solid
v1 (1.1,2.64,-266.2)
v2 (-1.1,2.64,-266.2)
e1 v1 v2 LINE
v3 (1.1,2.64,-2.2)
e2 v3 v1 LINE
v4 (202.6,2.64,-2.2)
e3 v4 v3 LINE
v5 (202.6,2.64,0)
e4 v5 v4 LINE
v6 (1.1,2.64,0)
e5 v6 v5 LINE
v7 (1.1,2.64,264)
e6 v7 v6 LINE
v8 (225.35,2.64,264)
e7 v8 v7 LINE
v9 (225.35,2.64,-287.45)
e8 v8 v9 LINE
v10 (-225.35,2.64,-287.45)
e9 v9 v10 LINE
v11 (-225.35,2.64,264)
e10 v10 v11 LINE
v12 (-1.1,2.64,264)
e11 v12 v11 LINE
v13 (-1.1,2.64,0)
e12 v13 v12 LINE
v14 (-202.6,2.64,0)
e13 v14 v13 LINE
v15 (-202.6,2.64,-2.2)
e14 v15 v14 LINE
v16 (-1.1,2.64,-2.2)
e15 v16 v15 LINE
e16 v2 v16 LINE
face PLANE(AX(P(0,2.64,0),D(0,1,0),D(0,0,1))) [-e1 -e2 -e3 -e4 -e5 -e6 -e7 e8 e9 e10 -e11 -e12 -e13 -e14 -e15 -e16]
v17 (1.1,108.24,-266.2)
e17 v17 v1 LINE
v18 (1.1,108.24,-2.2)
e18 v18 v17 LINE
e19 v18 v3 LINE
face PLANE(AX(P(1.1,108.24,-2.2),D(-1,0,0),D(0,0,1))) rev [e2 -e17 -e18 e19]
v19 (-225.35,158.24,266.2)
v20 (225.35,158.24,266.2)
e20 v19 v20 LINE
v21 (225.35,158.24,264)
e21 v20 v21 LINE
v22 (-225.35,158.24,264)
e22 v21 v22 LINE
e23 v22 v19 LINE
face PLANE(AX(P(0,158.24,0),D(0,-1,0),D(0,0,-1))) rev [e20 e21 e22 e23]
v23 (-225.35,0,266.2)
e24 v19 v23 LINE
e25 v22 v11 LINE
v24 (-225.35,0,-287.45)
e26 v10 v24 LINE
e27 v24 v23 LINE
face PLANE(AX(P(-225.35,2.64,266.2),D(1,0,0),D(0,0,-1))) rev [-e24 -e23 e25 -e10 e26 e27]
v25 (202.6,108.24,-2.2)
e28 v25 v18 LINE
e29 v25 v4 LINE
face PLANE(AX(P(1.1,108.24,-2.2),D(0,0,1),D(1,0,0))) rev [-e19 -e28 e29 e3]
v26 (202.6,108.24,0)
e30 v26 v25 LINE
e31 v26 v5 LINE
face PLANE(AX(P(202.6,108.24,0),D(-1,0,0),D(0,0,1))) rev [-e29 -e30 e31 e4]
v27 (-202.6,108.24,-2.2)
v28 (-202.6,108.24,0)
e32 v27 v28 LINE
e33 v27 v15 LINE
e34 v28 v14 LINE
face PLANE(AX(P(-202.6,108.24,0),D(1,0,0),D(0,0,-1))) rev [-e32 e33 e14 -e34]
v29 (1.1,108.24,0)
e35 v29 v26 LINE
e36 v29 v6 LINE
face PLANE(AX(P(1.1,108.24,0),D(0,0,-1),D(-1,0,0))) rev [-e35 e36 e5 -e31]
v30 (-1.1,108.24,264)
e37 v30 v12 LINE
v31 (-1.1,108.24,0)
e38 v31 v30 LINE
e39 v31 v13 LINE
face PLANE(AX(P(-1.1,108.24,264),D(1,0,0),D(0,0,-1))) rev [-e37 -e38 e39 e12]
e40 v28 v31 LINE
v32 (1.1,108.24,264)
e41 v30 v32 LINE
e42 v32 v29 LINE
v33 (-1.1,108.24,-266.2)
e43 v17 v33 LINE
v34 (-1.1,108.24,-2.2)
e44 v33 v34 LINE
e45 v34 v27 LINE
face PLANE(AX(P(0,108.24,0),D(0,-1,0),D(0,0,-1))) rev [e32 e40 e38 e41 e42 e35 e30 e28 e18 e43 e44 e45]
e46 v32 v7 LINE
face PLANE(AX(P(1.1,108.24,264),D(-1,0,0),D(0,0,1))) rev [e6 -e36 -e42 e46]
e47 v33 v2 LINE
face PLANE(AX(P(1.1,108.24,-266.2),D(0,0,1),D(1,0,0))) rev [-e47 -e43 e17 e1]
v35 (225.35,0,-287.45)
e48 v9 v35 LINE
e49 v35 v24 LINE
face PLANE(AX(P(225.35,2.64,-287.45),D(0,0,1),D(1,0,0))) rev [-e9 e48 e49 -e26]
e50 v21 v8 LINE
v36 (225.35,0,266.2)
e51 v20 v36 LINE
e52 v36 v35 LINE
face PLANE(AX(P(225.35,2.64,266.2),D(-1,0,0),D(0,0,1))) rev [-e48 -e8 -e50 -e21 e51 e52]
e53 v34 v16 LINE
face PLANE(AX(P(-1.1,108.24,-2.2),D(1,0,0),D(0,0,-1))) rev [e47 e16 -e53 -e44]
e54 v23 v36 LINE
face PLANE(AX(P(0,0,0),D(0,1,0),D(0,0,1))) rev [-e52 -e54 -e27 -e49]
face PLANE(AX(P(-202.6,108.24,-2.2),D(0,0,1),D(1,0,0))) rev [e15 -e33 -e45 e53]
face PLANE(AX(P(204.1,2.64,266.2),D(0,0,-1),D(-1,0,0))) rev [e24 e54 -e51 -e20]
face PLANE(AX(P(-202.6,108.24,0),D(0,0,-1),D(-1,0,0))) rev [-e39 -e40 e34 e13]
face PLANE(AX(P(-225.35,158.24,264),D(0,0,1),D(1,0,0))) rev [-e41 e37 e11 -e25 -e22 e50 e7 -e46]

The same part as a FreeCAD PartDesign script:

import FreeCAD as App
import Part
import Sketcher
from FreeCAD import Vector
Q = App.Units.Quantity


def add_polygon(sketch, points):
    """Adds a closed chain of lines whose ends are joined by coincident constraints."""
    first, n = sketch.GeometryCount, len(points)
    for a, b in zip(points, points[1:] + points[:1]):
        sketch.addGeometry(Part.LineSegment(App.Vector(*a, 0), App.Vector(*b, 0)), False)
    for i in range(n):
        sketch.addConstraint(Sketcher.Constraint("Coincident", first + i, 2, first + (i + 1) % n, 1))

doc = App.newDocument("Part")
body = doc.addObject("PartDesign::Body", "Body")

# Sketch on XZ plane
sketch1 = body.newObject("Sketcher::SketchObject", "Sketch")
sketch1.AttachmentSupport = (doc.getObject("XZ_Plane"), [""])
sketch1.MapMode = "FlatFace"
add_polygon(sketch1, [(-225, -287), (-225, 266), (225, 266), (225, -287)])  # lines 0-3
sketch1.addConstraint([
    Sketcher.Constraint("Vertical", 0),
    Sketcher.Constraint("Horizontal", 1),
    Sketcher.Constraint("Vertical", 2),
    Sketcher.Constraint("Horizontal", 3),
    Sketcher.Constraint("DistanceX", 1, 1, 1, 2, Q("450.7 mm")),
    Sketcher.Constraint("DistanceY", 0, 1, 0, 2, Q("553.65 mm")),
    Sketcher.Constraint("DistanceY", -1, 1, 0, 2, Q("266.2 mm")),
    Sketcher.Constraint("DistanceX", 0, 2, -1, 1, Q("225.35 mm")),
])
pad1 = body.newObject("PartDesign::Pad", "Pad")
pad1.Profile = sketch1
pad1.Length = 2.64
pad1.Reversed = True

# Sketch on XZ plane
sketch2 = body.newObject("Sketcher::SketchObject", "Sketch001")
sketch2.AttachmentSupport = (doc.getObject("XZ_Plane"), [""])
sketch2.MapMode = "FlatFace"
sketch2.AttachmentOffset = App.Placement(Vector(0, 0, -2.64), App.Rotation())
add_polygon(sketch2, [(-225.3, 264), (-225.3, 266.2), (225.3, 266.2), (225.3, 264)])  # lines 0-3
sketch2.addConstraint([
    Sketcher.Constraint("Vertical", 0),
    Sketcher.Constraint("Horizontal", 1),
    Sketcher.Constraint("Vertical", 2),
    Sketcher.Constraint("Horizontal", 3),
    Sketcher.Constraint("DistanceX", 1, 1, 1, 2, Q("450.7 mm")),
    Sketcher.Constraint("DistanceY", 0, 1, 0, 2, Q("2.2 mm")),
    Sketcher.Constraint("DistanceY", -1, 1, 2, 2, Q("264 mm")),
    Sketcher.Constraint("DistanceX", 0, 2, -1, 1, Q("225.35 mm")),
])
pad2 = body.newObject("PartDesign::Pad", "Pad001")
pad2.Profile = sketch2
pad2.Length = 155.6
pad2.Reversed = True

# Sketch on XZ plane
sketch3 = body.newObject("Sketcher::SketchObject", "Sketch002")
sketch3.AttachmentSupport = (doc.getObject("XZ_Plane"), [""])
sketch3.MapMode = "FlatFace"
sketch3.AttachmentOffset = App.Placement(Vector(0, 0, -2.64), App.Rotation())
add_polygon(sketch3, [(1.1, 264), (1.1, 0), (202.6, 0), (202.6, -2.2), (1.1, -2.2), (1.1, -266.2), (-1.1, -266.2), (-1.1, -2.2), (-202.6, -2.2), (-202.6, 0), (-1.1, 0), (-1.1, 264)])  # lines 0-11
sketch3.addConstraint([
    Sketcher.Constraint("Vertical", 0),
    Sketcher.Constraint("Horizontal", 1),
    Sketcher.Constraint("Vertical", 2),
    Sketcher.Constraint("Horizontal", 3),
    Sketcher.Constraint("Vertical", 4),
    Sketcher.Constraint("Horizontal", 5),
    Sketcher.Constraint("Vertical", 6),
    Sketcher.Constraint("Horizontal", 7),
    Sketcher.Constraint("Vertical", 8),
    Sketcher.Constraint("Horizontal", 9),
    Sketcher.Constraint("Vertical", 10),
    Sketcher.Constraint("Horizontal", 11),
    Sketcher.Constraint("Symmetric", 1, 2, 8, 2, -1, 1),
    Sketcher.Constraint("Symmetric", 3, 2, 6, 2, -2),
    Sketcher.Constraint("Symmetric", 0, 2, 9, 2, -2),
    Sketcher.Constraint("Vertical", 0, 2, 3, 2),
    Sketcher.Constraint("Equal", 11, 2),
    Sketcher.Constraint("Equal", 0, 4),
    Sketcher.Constraint("DistanceY", 0, 2, 0, 1, Q("264 mm")),
    Sketcher.Constraint("DistanceX", 1, 1, 1, 2, Q("201.5 mm")),
    Sketcher.Constraint("DistanceX", 5, 2, 5, 1, Q("2.2 mm")),
])
pad3 = body.newObject("PartDesign::Pad", "Pad002")
pad3.Profile = sketch3
pad3.Length = 105.6
pad3.Reversed = True

doc.recompute()
